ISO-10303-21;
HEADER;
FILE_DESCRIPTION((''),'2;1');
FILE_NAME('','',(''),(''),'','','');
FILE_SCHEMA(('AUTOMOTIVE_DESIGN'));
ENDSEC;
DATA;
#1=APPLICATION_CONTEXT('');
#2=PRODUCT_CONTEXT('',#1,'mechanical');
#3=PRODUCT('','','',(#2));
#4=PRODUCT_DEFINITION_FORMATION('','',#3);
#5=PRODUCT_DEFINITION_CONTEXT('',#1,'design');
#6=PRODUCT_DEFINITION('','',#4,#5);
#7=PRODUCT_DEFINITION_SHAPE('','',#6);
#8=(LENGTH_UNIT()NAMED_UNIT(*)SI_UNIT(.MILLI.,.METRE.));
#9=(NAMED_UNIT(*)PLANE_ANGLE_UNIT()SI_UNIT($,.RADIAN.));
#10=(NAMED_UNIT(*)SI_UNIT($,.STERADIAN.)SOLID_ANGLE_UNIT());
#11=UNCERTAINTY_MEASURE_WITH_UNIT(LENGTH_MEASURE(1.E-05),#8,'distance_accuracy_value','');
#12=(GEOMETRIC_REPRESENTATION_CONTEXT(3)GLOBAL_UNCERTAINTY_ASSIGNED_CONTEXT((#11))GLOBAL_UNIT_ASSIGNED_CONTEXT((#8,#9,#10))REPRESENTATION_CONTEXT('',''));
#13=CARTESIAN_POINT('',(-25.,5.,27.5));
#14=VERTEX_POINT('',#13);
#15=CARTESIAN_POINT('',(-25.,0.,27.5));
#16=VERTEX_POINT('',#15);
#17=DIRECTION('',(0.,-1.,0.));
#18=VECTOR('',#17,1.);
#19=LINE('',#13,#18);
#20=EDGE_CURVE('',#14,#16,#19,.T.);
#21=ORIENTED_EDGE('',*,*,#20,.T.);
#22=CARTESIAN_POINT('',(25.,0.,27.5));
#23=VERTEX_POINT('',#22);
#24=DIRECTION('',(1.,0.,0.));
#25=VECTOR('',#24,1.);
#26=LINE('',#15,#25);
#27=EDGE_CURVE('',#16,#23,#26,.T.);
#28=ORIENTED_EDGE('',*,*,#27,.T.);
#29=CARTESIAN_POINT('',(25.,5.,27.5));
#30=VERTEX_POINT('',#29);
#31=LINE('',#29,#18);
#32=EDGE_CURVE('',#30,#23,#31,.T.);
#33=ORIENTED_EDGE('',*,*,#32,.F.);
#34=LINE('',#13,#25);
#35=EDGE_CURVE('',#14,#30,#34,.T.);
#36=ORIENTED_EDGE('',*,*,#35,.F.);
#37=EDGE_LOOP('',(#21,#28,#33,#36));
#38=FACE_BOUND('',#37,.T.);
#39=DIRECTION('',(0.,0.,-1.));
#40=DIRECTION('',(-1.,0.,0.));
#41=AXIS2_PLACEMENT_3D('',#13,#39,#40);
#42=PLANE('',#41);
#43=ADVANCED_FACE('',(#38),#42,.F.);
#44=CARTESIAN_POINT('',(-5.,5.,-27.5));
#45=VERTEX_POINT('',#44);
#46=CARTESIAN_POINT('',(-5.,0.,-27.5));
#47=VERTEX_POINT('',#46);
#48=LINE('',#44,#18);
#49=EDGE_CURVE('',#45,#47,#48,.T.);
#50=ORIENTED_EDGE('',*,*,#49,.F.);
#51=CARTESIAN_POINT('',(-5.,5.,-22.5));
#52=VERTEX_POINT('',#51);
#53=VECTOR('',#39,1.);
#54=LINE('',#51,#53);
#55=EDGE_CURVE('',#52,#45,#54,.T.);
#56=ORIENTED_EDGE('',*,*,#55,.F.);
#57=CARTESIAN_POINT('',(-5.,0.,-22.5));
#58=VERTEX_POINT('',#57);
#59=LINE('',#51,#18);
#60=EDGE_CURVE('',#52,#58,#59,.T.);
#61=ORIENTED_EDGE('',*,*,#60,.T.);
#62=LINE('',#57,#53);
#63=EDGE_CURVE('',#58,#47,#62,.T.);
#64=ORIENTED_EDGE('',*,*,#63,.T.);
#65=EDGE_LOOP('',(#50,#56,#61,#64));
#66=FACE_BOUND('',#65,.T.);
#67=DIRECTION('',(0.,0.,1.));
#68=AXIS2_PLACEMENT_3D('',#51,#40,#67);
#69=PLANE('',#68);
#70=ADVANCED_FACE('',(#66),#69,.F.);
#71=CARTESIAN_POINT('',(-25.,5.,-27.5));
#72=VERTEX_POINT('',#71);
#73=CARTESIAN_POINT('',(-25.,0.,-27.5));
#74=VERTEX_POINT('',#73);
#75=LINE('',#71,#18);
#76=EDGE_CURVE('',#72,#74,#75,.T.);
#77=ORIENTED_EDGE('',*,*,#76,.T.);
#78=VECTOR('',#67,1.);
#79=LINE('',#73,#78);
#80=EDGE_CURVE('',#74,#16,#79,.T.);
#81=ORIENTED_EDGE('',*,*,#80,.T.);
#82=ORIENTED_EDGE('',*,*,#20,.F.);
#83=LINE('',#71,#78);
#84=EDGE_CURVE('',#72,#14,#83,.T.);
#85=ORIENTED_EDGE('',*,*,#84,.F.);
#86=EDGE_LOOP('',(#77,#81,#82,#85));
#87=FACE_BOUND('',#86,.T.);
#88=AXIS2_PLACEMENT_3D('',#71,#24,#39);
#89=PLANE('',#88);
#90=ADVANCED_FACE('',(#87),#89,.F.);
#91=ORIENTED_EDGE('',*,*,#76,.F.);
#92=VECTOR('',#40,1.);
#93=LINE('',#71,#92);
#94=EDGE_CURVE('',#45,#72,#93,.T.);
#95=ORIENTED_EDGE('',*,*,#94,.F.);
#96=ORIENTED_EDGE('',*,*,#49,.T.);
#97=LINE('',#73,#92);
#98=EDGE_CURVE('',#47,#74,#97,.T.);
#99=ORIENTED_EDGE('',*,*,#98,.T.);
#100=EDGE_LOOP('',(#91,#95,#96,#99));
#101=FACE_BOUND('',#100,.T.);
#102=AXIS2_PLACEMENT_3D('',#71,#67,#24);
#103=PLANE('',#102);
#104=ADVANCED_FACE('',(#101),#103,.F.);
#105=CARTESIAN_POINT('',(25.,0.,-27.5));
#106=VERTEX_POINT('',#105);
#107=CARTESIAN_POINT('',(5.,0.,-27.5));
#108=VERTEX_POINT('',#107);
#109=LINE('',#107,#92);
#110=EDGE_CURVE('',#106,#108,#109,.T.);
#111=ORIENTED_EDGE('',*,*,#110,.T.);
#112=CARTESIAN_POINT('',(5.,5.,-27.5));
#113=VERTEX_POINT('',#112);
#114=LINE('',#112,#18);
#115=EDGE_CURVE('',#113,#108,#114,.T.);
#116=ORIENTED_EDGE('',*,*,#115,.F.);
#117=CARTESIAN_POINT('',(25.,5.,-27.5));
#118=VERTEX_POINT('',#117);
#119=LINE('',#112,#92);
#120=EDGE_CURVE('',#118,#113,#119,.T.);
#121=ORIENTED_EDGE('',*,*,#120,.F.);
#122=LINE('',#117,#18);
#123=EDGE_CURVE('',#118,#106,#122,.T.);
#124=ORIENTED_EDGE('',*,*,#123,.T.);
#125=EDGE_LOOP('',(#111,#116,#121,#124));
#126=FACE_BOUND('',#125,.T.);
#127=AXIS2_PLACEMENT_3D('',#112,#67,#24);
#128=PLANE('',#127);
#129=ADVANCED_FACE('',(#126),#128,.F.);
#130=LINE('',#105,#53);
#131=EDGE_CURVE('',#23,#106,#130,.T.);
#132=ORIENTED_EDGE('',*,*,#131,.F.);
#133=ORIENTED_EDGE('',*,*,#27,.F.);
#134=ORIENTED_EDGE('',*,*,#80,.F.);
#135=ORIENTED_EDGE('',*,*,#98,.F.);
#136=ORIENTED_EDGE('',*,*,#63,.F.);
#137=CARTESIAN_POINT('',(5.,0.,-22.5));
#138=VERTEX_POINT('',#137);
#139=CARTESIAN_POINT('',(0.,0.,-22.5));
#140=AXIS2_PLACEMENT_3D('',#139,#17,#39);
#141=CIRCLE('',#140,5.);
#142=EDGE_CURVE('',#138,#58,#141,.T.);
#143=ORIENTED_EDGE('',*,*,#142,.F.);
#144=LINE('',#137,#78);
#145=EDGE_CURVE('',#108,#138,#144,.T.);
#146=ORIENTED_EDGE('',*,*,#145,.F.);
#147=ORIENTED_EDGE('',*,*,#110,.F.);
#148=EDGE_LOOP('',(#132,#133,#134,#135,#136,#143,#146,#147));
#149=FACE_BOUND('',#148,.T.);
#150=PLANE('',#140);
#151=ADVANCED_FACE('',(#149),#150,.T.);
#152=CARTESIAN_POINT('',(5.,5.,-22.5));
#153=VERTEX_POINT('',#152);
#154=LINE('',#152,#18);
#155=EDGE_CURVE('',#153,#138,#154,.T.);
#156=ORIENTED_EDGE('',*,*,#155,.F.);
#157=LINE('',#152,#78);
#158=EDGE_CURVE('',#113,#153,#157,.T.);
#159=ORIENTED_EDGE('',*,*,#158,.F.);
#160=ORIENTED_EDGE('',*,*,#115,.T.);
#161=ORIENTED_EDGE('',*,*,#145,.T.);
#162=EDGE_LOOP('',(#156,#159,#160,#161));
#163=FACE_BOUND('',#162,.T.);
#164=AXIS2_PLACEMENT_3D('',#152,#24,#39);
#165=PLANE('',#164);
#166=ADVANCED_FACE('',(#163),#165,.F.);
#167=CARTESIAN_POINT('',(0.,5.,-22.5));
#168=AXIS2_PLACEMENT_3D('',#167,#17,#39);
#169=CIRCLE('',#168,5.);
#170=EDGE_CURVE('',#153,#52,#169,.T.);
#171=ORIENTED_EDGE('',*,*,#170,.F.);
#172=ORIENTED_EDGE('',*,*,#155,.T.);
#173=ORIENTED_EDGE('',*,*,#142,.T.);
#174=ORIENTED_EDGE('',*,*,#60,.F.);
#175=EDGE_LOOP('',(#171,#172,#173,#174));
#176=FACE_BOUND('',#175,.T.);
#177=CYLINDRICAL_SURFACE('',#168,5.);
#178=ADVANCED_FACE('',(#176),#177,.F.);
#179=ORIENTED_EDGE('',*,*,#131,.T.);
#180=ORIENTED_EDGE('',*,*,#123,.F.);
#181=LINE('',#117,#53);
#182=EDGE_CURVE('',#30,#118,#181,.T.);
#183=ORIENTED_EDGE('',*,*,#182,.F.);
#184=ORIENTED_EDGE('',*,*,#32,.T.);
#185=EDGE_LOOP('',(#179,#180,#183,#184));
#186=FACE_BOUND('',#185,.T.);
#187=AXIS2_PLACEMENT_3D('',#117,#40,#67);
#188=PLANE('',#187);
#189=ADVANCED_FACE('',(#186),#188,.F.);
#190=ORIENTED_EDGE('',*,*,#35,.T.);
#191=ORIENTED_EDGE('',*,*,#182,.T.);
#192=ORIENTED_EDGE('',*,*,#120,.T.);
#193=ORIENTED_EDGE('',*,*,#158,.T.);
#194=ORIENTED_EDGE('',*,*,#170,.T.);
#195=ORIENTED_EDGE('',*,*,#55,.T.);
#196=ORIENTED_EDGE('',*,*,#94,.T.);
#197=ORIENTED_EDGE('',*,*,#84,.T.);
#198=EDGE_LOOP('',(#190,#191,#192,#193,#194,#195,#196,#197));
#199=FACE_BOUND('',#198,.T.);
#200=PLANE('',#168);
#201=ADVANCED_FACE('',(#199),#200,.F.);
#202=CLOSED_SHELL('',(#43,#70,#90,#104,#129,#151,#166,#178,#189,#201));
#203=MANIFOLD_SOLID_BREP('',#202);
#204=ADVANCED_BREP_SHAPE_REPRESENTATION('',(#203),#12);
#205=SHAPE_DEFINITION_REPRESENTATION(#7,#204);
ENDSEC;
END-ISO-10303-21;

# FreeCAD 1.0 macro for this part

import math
import FreeCAD as App
import Part
import Sketcher

V = App.Vector

doc = App.newDocument("Part")
body = doc.addObject("PartDesign::Body", "Body")

sketch1 = body.newObject("Sketcher::SketchObject", "Sketch")
sketch1.AttachmentSupport = (doc.getObject("XZ_Plane"), [""])
sketch1.MapMode = "FlatFace"
sketch1.addGeometry(Part.LineSegment(V(-5, -27.5, 0), V(-25, -27.5, 0)), False)
sketch1.addGeometry(Part.LineSegment(V(-25, -27.5, 0), V(-25, 27.5, 0)), False)
sketch1.addGeometry(Part.LineSegment(V(-25, 27.5, 0), V(25, 27.5, 0)), False)
sketch1.addGeometry(Part.LineSegment(V(25, 27.5, 0), V(25, -27.5, 0)), False)
sketch1.addGeometry(Part.LineSegment(V(25, -27.5, 0), V(5, -27.5, 0)), False)
sketch1.addGeometry(Part.LineSegment(V(5, -27.5, 0), V(5, -22.5, 0)), False)
sketch1.addGeometry(Part.ArcOfCircle(Part.Circle(V(0, -22.5, 0), V(0, 0, 1), 5), math.radians(0), math.radians(180)), False)
sketch1.addGeometry(Part.LineSegment(V(-5, -22.5, 0), V(-5, -27.5, 0)), False)
sketch1.addConstraint(Sketcher.Constraint("Coincident", 0, 2, 1, 1))
sketch1.addConstraint(Sketcher.Constraint("Coincident", 1, 2, 2, 1))
sketch1.addConstraint(Sketcher.Constraint("Coincident", 2, 2, 3, 1))
sketch1.addConstraint(Sketcher.Constraint("Coincident", 3, 2, 4, 1))
sketch1.addConstraint(Sketcher.Constraint("Coincident", 4, 2, 5, 1))
sketch1.addConstraint(Sketcher.Constraint("Tangent", 5, 2, 6, 1))
sketch1.addConstraint(Sketcher.Constraint("Tangent", 6, 2, 7, 1))
sketch1.addConstraint(Sketcher.Constraint("Coincident", 7, 2, 0, 1))
sketch1.addConstraint(Sketcher.Constraint("Horizontal", 0))
sketch1.addConstraint(Sketcher.Constraint("Vertical", 1))
sketch1.addConstraint(Sketcher.Constraint("Horizontal", 2))
sketch1.addConstraint(Sketcher.Constraint("Vertical", 3))
sketch1.addConstraint(Sketcher.Constraint("Horizontal", 4))
sketch1.addConstraint(Sketcher.Constraint("Vertical", 5))
sketch1.addConstraint(Sketcher.Constraint("Vertical", 7))
sketch1.addConstraint(Sketcher.Constraint("Symmetric", 0, 2, 2, 2, -1, 1))
sketch1.addConstraint(Sketcher.Constraint("Symmetric", 4, 2, 7, 2, -2))
sketch1.addConstraint(Sketcher.Constraint("Radius", 6, 5.0))
sketch1.addConstraint(Sketcher.Constraint("DistanceX", 0, 2, 0, 1, 20.0))
sketch1.addConstraint(Sketcher.Constraint("DistanceY", 1, 1, 1, 2, 55.0))
sketch1.addConstraint(Sketcher.Constraint("DistanceY", 5, 1, 5, 2, 5.0))
pad1 = body.newObject("PartDesign::Pad", "Pad")
pad1.Profile = sketch1
pad1.Length = 5
pad1.Reversed = True

doc.recompute()
